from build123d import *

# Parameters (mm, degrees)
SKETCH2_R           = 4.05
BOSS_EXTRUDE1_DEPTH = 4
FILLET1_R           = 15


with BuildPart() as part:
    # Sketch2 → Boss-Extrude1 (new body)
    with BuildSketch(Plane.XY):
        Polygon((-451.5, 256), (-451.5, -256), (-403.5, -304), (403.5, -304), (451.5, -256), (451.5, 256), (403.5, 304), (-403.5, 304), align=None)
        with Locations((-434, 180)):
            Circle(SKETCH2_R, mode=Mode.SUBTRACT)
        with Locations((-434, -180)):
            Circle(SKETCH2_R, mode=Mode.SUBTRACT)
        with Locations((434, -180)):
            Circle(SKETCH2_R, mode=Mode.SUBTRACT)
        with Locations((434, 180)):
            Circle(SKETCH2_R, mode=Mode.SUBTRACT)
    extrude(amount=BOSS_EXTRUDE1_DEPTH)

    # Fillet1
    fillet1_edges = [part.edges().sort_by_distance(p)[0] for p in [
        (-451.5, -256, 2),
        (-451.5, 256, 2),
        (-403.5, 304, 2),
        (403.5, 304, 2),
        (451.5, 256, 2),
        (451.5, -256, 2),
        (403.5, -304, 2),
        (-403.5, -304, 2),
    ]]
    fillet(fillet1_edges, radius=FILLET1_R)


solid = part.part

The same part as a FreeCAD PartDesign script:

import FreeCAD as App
import Part
import Sketcher

V = App.Vector


def edges_at(feature, points):
    """Names of the edges that pass closest to the given points."""
    edges = feature.Shape.Edges
    near = lambda p: min(range(len(edges)), key=lambda i: edges[i].distToShape(Part.Vertex(*p))[0])
    return sorted({f"Edge{near(p) + 1}" for p in points})

doc = App.newDocument("Part")
body = doc.addObject("PartDesign::Body", "Body")

# Sketch on XY plane
sketch1 = doc.addObject("Sketcher::SketchObject", "Sketch")
body.addObject(sketch1)
sketch1.AttachmentSupport = (doc.XY_Plane, [""])
sketch1.MapMode = "FlatFace"
sketch1.addGeometry([
    Part.LineSegment(V(-451.5, 256, 0), V(-451.5, -256, 0)),  # 0
    Part.LineSegment(V(-451.5, -256, 0), V(-403.5, -304, 0)),  # 1
    Part.LineSegment(V(-403.5, -304, 0), V(403.5, -304, 0)),  # 2
    Part.LineSegment(V(403.5, -304, 0), V(451.5, -256, 0)),  # 3
    Part.LineSegment(V(451.5, -256, 0), V(451.5, 256, 0)),  # 4
    Part.LineSegment(V(451.5, 256, 0), V(403.5, 304, 0)),  # 5
    Part.LineSegment(V(403.5, 304, 0), V(-403.5, 304, 0)),  # 6
    Part.LineSegment(V(-403.5, 304, 0), V(-451.5, 256, 0)),  # 7
    Part.Circle(V(-434, -180, 0), V(0, 0, 1), 4),  # 8
    Part.Circle(V(434, -180, 0), V(0, 0, 1), 4),  # 9
    Part.Circle(V(-434, 180, 0), V(0, 0, 1), 4),  # 10
    Part.Circle(V(434, 180, 0), V(0, 0, 1), 4),  # 11
], False)
sketch1.addConstraint([
    Sketcher.Constraint("Coincident", 0, 2, 1, 1),
    Sketcher.Constraint("Coincident", 1, 2, 2, 1),
    Sketcher.Constraint("Coincident", 2, 2, 3, 1),
    Sketcher.Constraint("Coincident", 3, 2, 4, 1),
    Sketcher.Constraint("Coincident", 4, 2, 5, 1),
    Sketcher.Constraint("Coincident", 5, 2, 6, 1),
    Sketcher.Constraint("Coincident", 6, 2, 7, 1),
    Sketcher.Constraint("Coincident", 7, 2, 0, 1),
    Sketcher.Constraint("Vertical", 0),
    Sketcher.Constraint("Horizontal", 2),
    Sketcher.Constraint("Vertical", 4),
    Sketcher.Constraint("Horizontal", 6),
    Sketcher.Constraint("Equal", 8, 9),
    Sketcher.Constraint("Equal", 9, 10),
    Sketcher.Constraint("Equal", 10, 11),
    Sketcher.Constraint("Symmetric", 9, 3, 10, 3, -1, 1),
    Sketcher.Constraint("Symmetric", 8, 3, 11, 3, -1, 1),
    Sketcher.Constraint("Symmetric", 0, 2, 4, 2, -1, 1),
    Sketcher.Constraint("Symmetric", 1, 2, 5, 2, -1, 1),
    Sketcher.Constraint("Symmetric", 8, 3, 9, 3, -2),
    Sketcher.Constraint("Perpendicular", 1, 3),
    Sketcher.Constraint("Perpendicular", 5, 7),
    Sketcher.Constraint("Horizontal", 0, 2, 3, 2),
    Sketcher.Constraint("Horizontal", 4, 2, 7, 2),
    Sketcher.Constraint("Vertical", 2, 2, 5, 2),
    Sketcher.Constraint("Diameter", 8, 8.1),
    Sketcher.Constraint("DistanceX", 2, 1, 2, 2, 807.0),
    Sketcher.Constraint("DistanceY", 0, 2, 0, 1, 512.0),
    Sketcher.Constraint("DistanceX", 8, 3, -1, 1, 434.0),
    Sketcher.Constraint("DistanceY", 8, 3, -1, 1, 180.0),
    Sketcher.Constraint("DistanceY", 1, 2, -1, 1, 304.0),
])
pad1 = doc.addObject("PartDesign::Pad", "Pad")
body.addObject(pad1)
pad1.Profile = sketch1
pad1.Length = 4
doc.recompute()

fillet = doc.addObject("PartDesign::Fillet", "Fillet")
body.addObject(fillet)
fillet.Base = (pad1, edges_at(pad1, [
    (-451.5, -256, 2),
    (-451.5, 256, 2),
    (-403.5, 304, 2),
    (403.5, 304, 2),
    (451.5, 256, 2),
    (451.5, -256, 2),
    (403.5, -304, 2),
    (-403.5, -304, 2),
]))
fillet.Radius = 15

doc.recompute()
